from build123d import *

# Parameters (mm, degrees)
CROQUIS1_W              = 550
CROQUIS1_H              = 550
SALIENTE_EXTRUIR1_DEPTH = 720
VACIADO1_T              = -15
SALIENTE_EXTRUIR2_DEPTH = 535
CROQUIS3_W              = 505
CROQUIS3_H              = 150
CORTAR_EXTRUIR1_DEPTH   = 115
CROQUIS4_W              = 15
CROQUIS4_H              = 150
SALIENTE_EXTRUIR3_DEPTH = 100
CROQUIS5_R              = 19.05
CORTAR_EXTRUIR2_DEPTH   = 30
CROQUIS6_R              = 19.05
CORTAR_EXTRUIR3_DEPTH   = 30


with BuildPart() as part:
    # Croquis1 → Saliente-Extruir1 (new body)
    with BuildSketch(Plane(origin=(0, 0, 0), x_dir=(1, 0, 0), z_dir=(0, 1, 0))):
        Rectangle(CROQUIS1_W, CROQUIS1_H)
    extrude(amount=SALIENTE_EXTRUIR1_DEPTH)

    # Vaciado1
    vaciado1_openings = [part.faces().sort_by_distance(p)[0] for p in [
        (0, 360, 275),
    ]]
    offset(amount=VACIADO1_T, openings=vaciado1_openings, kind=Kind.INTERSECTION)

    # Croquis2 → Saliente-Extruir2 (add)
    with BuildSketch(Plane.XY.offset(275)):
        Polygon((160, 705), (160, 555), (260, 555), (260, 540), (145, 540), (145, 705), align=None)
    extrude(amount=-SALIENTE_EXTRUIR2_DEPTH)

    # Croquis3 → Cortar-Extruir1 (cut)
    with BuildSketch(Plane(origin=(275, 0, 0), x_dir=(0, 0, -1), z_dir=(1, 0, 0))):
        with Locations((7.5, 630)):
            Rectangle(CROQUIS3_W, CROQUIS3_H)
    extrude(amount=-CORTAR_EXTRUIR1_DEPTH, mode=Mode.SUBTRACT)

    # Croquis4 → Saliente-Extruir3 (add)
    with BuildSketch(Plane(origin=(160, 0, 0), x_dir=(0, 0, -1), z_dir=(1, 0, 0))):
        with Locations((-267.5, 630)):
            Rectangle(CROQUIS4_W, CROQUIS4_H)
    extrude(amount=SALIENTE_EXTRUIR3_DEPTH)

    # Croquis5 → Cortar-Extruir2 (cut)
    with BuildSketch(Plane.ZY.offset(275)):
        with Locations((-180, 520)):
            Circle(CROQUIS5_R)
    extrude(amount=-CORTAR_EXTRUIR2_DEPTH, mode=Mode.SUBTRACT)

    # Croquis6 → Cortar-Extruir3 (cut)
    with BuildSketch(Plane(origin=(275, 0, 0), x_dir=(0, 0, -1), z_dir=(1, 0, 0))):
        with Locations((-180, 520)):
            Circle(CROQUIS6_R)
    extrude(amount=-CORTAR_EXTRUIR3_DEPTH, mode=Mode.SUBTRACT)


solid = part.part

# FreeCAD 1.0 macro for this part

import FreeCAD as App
import Part
import Sketcher

V = App.Vector
Q = App.Units.Quantity


def faces_at(feature, points):
    """Names of the faces that lie closest to the given points."""
    faces = feature.Shape.Faces
    near = lambda p: min(range(len(faces)), key=lambda i: faces[i].distToShape(Part.Vertex(*p))[0])
    return sorted({f"Face{near(p) + 1}" for p in points})

doc = App.newDocument("Part")
params = doc.addObject("Spreadsheet::Sheet", "Params")
for row, (alias, value) in enumerate([
    ("sketch1_width", "550 mm"),
    ("pad1_length", "720 mm"),
    ("thickness_wall", "15 mm"),
    ("sketch2_width", "15 mm"),
    ("sketch2_width2", "115 mm"),
    ("sketch2_height", "150 mm"),
    ("pad2_length", "535 mm"),
    ("sketch3_width", "150 mm"),
    ("sketch3_height", "505 mm"),
    ("pocket1_length", "115 mm"),
    ("sketch4_width", "150 mm"),
    ("sketch4_height", "15 mm"),
    ("pad3_length", "100 mm"),
    ("sketch5_diameter", "38.1 mm"),
    ("pocket2_length", "30 mm"),
    ("sketch6_diameter", "38.1 mm"),
    ("pocket3_length", "30 mm"),
], start=1):
    params.set(f"A{row}", alias)
    params.set(f"B{row}", "=" + value)
    params.setAlias(f"B{row}", alias)

body = doc.addObject("PartDesign::Body", "Body")

sketch1 = body.newObject("Sketcher::SketchObject", "Sketch")
sketch1.AttachmentSupport = (doc.getObject("XZ_Plane"), [""])
sketch1.MapMode = "FlatFace"
sketch1.addGeometry(Part.LineSegment(V(-275, -275, 0), V(-275, 275, 0)), False)
sketch1.addGeometry(Part.LineSegment(V(-275, 275, 0), V(275, 275, 0)), False)
sketch1.addGeometry(Part.LineSegment(V(275, 275, 0), V(275, -275, 0)), False)
sketch1.addGeometry(Part.LineSegment(V(275, -275, 0), V(-275, -275, 0)), False)
sketch1.addConstraint(Sketcher.Constraint("Coincident", 0, 2, 1, 1))
sketch1.addConstraint(Sketcher.Constraint("Coincident", 1, 2, 2, 1))
sketch1.addConstraint(Sketcher.Constraint("Coincident", 2, 2, 3, 1))
sketch1.addConstraint(Sketcher.Constraint("Coincident", 3, 2, 0, 1))
sketch1.addConstraint(Sketcher.Constraint("Vertical", 0))
sketch1.addConstraint(Sketcher.Constraint("Horizontal", 1))
sketch1.addConstraint(Sketcher.Constraint("Vertical", 2))
sketch1.addConstraint(Sketcher.Constraint("Horizontal", 3))
sketch1.addConstraint(Sketcher.Constraint("Symmetric", 0, 2, 2, 2, -1, 1))
sketch1.addConstraint(Sketcher.Constraint("Equal", 3, 0))
sketch1.addConstraint(Sketcher.Constraint("DistanceX", 1, 1, 1, 2, Q("550 mm")))
sketch1.setExpression("Constraints[10]", "Params.sketch1_width")
pad1 = body.newObject("PartDesign::Pad", "Pad")
pad1.Profile = sketch1
pad1.setExpression("Length", "Params.pad1_length")
pad1.Reversed = True
doc.recompute()

thickness = body.newObject("PartDesign::Thickness", "Thickness")
thickness.Base = (pad1, faces_at(pad1, [(0, 360, 275)]))
thickness.setExpression("Value", "Params.thickness_wall")
thickness.Reversed = True
thickness.Join = "Intersection"

sketch2 = body.newObject("Sketcher::SketchObject", "Sketch001")
sketch2.AttachmentSupport = (doc.getObject("XY_Plane"), [""])
sketch2.MapMode = "FlatFace"
sketch2.AttachmentOffset = App.Placement(V(0, 0, 275), App.Rotation())
sketch2.addGeometry(Part.LineSegment(V(160, 555, 0), V(160, 705, 0)), False)
sketch2.addGeometry(Part.LineSegment(V(160, 705, 0), V(145, 705, 0)), False)
sketch2.addGeometry(Part.LineSegment(V(145, 705, 0), V(145, 540, 0)), False)
sketch2.addGeometry(Part.LineSegment(V(145, 540, 0), V(260, 540, 0)), False)
sketch2.addGeometry(Part.LineSegment(V(260, 540, 0), V(260, 555, 0)), False)
sketch2.addGeometry(Part.LineSegment(V(260, 555, 0), V(160, 555, 0)), False)
sketch2.addConstraint(Sketcher.Constraint("Coincident", 0, 2, 1, 1))
sketch2.addConstraint(Sketcher.Constraint("Coincident", 1, 2, 2, 1))
sketch2.addConstraint(Sketcher.Constraint("Coincident", 2, 2, 3, 1))
sketch2.addConstraint(Sketcher.Constraint("Coincident", 3, 2, 4, 1))
sketch2.addConstraint(Sketcher.Constraint("Coincident", 4, 2, 5, 1))
sketch2.addConstraint(Sketcher.Constraint("Coincident", 5, 2, 0, 1))
sketch2.addConstraint(Sketcher.Constraint("Vertical", 0))
sketch2.addConstraint(Sketcher.Constraint("Horizontal", 1))
sketch2.addConstraint(Sketcher.Constraint("Vertical", 2))
sketch2.addConstraint(Sketcher.Constraint("Horizontal", 3))
sketch2.addConstraint(Sketcher.Constraint("Vertical", 4))
sketch2.addConstraint(Sketcher.Constraint("Horizontal", 5))
sketch2.addConstraint(Sketcher.Constraint("Equal", 1, 4))
sketch2.addConstraint(Sketcher.Constraint("DistanceX", 1, 2, 1, 1, Q("15 mm")))
sketch2.addConstraint(Sketcher.Constraint("DistanceX", 3, 1, 3, 2, Q("115 mm")))
sketch2.addConstraint(Sketcher.Constraint("DistanceY", 0, 1, 0, 2, Q("150 mm")))
sketch2.addConstraint(Sketcher.Constraint("DistanceX", -1, 1, 0, 2, Q("160 mm")))
sketch2.addConstraint(Sketcher.Constraint("DistanceY", -1, 1, 0, 2, Q("705 mm")))
sketch2.setExpression("Constraints[13]", "Params.sketch2_width")
sketch2.setExpression("Constraints[14]", "Params.sketch2_width2")
sketch2.setExpression("Constraints[15]", "Params.sketch2_height")
pad2 = body.newObject("PartDesign::Pad", "Pad001")
pad2.Profile = sketch2
pad2.setExpression("Length", "Params.pad2_length")
pad2.Reversed = True

sketch3 = body.newObject("Sketcher::SketchObject", "Sketch002")
sketch3.AttachmentSupport = (doc.getObject("YZ_Plane"), [""])
sketch3.MapMode = "FlatFace"
sketch3.AttachmentOffset = App.Placement(V(0, 0, 275), App.Rotation())
sketch3.addGeometry(Part.LineSegment(V(705, 245, 0), V(555, 245, 0)), False)
sketch3.addGeometry(Part.LineSegment(V(555, 245, 0), V(555, -260, 0)), False)
sketch3.addGeometry(Part.LineSegment(V(555, -260, 0), V(705, -260, 0)), False)
sketch3.addGeometry(Part.LineSegment(V(705, -260, 0), V(705, 245, 0)), False)
sketch3.addConstraint(Sketcher.Constraint("Coincident", 0, 2, 1, 1))
sketch3.addConstraint(Sketcher.Constraint("Coincident", 1, 2, 2, 1))
sketch3.addConstraint(Sketcher.Constraint("Coincident", 2, 2, 3, 1))
sketch3.addConstraint(Sketcher.Constraint("Coincident", 3, 2, 0, 1))
sketch3.addConstraint(Sketcher.Constraint("Horizontal", 0))
sketch3.addConstraint(Sketcher.Constraint("Vertical", 1))
sketch3.addConstraint(Sketcher.Constraint("Horizontal", 2))
sketch3.addConstraint(Sketcher.Constraint("Vertical", 3))
sketch3.addConstraint(Sketcher.Constraint("DistanceX", 0, 2, 0, 1, Q("150 mm")))
sketch3.addConstraint(Sketcher.Constraint("DistanceY", 1, 2, 1, 1, Q("505 mm")))
sketch3.addConstraint(Sketcher.Constraint("DistanceX", -1, 1, 0, 2, Q("555 mm")))
sketch3.addConstraint(Sketcher.Constraint("DistanceY", -1, 1, 0, 2, Q("245 mm")))
sketch3.setExpression("Constraints[8]", "Params.sketch3_width")
sketch3.setExpression("Constraints[9]", "Params.sketch3_height")
pocket1 = body.newObject("PartDesign::Pocket", "Pocket")
pocket1.Profile = sketch3
pocket1.setExpression("Length", "Params.pocket1_length")

sketch4 = body.newObject("Sketcher::SketchObject", "Sketch003")
sketch4.AttachmentSupport = (doc.getObject("YZ_Plane"), [""])
sketch4.MapMode = "FlatFace"
sketch4.AttachmentOffset = App.Placement(V(0, 0, 160), App.Rotation())
sketch4.addGeometry(Part.LineSegment(V(705, 275, 0), V(555, 275, 0)), False)
sketch4.addGeometry(Part.LineSegment(V(555, 275, 0), V(555, 260, 0)), False)
sketch4.addGeometry(Part.LineSegment(V(555, 260, 0), V(705, 260, 0)), False)
sketch4.addGeometry(Part.LineSegment(V(705, 260, 0), V(705, 275, 0)), False)
sketch4.addConstraint(Sketcher.Constraint("Coincident", 0, 2, 1, 1))
sketch4.addConstraint(Sketcher.Constraint("Coincident", 1, 2, 2, 1))
sketch4.addConstraint(Sketcher.Constraint("Coincident", 2, 2, 3, 1))
sketch4.addConstraint(Sketcher.Constraint("Coincident", 3, 2, 0, 1))
sketch4.addConstraint(Sketcher.Constraint("Horizontal", 0))
sketch4.addConstraint(Sketcher.Constraint("Vertical", 1))
sketch4.addConstraint(Sketcher.Constraint("Horizontal", 2))
sketch4.addConstraint(Sketcher.Constraint("Vertical", 3))
sketch4.addConstraint(Sketcher.Constraint("DistanceX", 0, 2, 0, 1, Q("150 mm")))
sketch4.addConstraint(Sketcher.Constraint("DistanceY", 1, 2, 1, 1, Q("15 mm")))
sketch4.addConstraint(Sketcher.Constraint("DistanceX", -1, 1, 0, 2, Q("555 mm")))
sketch4.addConstraint(Sketcher.Constraint("DistanceY", -1, 1, 0, 2, Q("275 mm")))
sketch4.setExpression("Constraints[8]", "Params.sketch4_width")
sketch4.setExpression("Constraints[9]", "Params.sketch4_height")
pad3 = body.newObject("PartDesign::Pad", "Pad002")
pad3.Profile = sketch4
pad3.setExpression("Length", "Params.pad3_length")

sketch5 = body.newObject("Sketcher::SketchObject", "Sketch004")
sketch5.AttachmentSupport = (doc.getObject("YZ_Plane"), [""])
sketch5.MapMode = "FlatFace"
sketch5.AttachmentOffset = App.Placement(V(0, 0, -275), App.Rotation())
sketch5.addGeometry(Part.Circle(V(520, -180, 0), V(0, 0, 1), 19), False)
sketch5.addConstraint(Sketcher.Constraint("Diameter", 0, Q("38.1 mm")))
sketch5.addConstraint(Sketcher.Constraint("DistanceX", -1, 1, 0, 3, Q("520 mm")))
sketch5.addConstraint(Sketcher.Constraint("DistanceY", 0, 3, -1, 1, Q("180 mm")))
sketch5.setExpression("Constraints[0]", "Params.sketch5_diameter")
pocket2 = body.newObject("PartDesign::Pocket", "Pocket001")
pocket2.Profile = sketch5
pocket2.setExpression("Length", "Params.pocket2_length")
pocket2.Reversed = True

sketch6 = body.newObject("Sketcher::SketchObject", "Sketch005")
sketch6.AttachmentSupport = (doc.getObject("YZ_Plane"), [""])
sketch6.MapMode = "FlatFace"
sketch6.AttachmentOffset = App.Placement(V(0, 0, 275), App.Rotation())
sketch6.addGeometry(Part.Circle(V(520, 180, 0), V(0, 0, 1), 19), False)
sketch6.addConstraint(Sketcher.Constraint("Diameter", 0, Q("38.1 mm")))
sketch6.addConstraint(Sketcher.Constraint("DistanceX", -1, 1, 0, 3, Q("520 mm")))
sketch6.addConstraint(Sketcher.Constraint("DistanceY", -1, 1, 0, 3, Q("180 mm")))
sketch6.setExpression("Constraints[0]", "Params.sketch6_diameter")
pocket3 = body.newObject("PartDesign::Pocket", "Pocket002")
pocket3.Profile = sketch6
pocket3.setExpression("Length", "Params.pocket3_length")

doc.recompute()
